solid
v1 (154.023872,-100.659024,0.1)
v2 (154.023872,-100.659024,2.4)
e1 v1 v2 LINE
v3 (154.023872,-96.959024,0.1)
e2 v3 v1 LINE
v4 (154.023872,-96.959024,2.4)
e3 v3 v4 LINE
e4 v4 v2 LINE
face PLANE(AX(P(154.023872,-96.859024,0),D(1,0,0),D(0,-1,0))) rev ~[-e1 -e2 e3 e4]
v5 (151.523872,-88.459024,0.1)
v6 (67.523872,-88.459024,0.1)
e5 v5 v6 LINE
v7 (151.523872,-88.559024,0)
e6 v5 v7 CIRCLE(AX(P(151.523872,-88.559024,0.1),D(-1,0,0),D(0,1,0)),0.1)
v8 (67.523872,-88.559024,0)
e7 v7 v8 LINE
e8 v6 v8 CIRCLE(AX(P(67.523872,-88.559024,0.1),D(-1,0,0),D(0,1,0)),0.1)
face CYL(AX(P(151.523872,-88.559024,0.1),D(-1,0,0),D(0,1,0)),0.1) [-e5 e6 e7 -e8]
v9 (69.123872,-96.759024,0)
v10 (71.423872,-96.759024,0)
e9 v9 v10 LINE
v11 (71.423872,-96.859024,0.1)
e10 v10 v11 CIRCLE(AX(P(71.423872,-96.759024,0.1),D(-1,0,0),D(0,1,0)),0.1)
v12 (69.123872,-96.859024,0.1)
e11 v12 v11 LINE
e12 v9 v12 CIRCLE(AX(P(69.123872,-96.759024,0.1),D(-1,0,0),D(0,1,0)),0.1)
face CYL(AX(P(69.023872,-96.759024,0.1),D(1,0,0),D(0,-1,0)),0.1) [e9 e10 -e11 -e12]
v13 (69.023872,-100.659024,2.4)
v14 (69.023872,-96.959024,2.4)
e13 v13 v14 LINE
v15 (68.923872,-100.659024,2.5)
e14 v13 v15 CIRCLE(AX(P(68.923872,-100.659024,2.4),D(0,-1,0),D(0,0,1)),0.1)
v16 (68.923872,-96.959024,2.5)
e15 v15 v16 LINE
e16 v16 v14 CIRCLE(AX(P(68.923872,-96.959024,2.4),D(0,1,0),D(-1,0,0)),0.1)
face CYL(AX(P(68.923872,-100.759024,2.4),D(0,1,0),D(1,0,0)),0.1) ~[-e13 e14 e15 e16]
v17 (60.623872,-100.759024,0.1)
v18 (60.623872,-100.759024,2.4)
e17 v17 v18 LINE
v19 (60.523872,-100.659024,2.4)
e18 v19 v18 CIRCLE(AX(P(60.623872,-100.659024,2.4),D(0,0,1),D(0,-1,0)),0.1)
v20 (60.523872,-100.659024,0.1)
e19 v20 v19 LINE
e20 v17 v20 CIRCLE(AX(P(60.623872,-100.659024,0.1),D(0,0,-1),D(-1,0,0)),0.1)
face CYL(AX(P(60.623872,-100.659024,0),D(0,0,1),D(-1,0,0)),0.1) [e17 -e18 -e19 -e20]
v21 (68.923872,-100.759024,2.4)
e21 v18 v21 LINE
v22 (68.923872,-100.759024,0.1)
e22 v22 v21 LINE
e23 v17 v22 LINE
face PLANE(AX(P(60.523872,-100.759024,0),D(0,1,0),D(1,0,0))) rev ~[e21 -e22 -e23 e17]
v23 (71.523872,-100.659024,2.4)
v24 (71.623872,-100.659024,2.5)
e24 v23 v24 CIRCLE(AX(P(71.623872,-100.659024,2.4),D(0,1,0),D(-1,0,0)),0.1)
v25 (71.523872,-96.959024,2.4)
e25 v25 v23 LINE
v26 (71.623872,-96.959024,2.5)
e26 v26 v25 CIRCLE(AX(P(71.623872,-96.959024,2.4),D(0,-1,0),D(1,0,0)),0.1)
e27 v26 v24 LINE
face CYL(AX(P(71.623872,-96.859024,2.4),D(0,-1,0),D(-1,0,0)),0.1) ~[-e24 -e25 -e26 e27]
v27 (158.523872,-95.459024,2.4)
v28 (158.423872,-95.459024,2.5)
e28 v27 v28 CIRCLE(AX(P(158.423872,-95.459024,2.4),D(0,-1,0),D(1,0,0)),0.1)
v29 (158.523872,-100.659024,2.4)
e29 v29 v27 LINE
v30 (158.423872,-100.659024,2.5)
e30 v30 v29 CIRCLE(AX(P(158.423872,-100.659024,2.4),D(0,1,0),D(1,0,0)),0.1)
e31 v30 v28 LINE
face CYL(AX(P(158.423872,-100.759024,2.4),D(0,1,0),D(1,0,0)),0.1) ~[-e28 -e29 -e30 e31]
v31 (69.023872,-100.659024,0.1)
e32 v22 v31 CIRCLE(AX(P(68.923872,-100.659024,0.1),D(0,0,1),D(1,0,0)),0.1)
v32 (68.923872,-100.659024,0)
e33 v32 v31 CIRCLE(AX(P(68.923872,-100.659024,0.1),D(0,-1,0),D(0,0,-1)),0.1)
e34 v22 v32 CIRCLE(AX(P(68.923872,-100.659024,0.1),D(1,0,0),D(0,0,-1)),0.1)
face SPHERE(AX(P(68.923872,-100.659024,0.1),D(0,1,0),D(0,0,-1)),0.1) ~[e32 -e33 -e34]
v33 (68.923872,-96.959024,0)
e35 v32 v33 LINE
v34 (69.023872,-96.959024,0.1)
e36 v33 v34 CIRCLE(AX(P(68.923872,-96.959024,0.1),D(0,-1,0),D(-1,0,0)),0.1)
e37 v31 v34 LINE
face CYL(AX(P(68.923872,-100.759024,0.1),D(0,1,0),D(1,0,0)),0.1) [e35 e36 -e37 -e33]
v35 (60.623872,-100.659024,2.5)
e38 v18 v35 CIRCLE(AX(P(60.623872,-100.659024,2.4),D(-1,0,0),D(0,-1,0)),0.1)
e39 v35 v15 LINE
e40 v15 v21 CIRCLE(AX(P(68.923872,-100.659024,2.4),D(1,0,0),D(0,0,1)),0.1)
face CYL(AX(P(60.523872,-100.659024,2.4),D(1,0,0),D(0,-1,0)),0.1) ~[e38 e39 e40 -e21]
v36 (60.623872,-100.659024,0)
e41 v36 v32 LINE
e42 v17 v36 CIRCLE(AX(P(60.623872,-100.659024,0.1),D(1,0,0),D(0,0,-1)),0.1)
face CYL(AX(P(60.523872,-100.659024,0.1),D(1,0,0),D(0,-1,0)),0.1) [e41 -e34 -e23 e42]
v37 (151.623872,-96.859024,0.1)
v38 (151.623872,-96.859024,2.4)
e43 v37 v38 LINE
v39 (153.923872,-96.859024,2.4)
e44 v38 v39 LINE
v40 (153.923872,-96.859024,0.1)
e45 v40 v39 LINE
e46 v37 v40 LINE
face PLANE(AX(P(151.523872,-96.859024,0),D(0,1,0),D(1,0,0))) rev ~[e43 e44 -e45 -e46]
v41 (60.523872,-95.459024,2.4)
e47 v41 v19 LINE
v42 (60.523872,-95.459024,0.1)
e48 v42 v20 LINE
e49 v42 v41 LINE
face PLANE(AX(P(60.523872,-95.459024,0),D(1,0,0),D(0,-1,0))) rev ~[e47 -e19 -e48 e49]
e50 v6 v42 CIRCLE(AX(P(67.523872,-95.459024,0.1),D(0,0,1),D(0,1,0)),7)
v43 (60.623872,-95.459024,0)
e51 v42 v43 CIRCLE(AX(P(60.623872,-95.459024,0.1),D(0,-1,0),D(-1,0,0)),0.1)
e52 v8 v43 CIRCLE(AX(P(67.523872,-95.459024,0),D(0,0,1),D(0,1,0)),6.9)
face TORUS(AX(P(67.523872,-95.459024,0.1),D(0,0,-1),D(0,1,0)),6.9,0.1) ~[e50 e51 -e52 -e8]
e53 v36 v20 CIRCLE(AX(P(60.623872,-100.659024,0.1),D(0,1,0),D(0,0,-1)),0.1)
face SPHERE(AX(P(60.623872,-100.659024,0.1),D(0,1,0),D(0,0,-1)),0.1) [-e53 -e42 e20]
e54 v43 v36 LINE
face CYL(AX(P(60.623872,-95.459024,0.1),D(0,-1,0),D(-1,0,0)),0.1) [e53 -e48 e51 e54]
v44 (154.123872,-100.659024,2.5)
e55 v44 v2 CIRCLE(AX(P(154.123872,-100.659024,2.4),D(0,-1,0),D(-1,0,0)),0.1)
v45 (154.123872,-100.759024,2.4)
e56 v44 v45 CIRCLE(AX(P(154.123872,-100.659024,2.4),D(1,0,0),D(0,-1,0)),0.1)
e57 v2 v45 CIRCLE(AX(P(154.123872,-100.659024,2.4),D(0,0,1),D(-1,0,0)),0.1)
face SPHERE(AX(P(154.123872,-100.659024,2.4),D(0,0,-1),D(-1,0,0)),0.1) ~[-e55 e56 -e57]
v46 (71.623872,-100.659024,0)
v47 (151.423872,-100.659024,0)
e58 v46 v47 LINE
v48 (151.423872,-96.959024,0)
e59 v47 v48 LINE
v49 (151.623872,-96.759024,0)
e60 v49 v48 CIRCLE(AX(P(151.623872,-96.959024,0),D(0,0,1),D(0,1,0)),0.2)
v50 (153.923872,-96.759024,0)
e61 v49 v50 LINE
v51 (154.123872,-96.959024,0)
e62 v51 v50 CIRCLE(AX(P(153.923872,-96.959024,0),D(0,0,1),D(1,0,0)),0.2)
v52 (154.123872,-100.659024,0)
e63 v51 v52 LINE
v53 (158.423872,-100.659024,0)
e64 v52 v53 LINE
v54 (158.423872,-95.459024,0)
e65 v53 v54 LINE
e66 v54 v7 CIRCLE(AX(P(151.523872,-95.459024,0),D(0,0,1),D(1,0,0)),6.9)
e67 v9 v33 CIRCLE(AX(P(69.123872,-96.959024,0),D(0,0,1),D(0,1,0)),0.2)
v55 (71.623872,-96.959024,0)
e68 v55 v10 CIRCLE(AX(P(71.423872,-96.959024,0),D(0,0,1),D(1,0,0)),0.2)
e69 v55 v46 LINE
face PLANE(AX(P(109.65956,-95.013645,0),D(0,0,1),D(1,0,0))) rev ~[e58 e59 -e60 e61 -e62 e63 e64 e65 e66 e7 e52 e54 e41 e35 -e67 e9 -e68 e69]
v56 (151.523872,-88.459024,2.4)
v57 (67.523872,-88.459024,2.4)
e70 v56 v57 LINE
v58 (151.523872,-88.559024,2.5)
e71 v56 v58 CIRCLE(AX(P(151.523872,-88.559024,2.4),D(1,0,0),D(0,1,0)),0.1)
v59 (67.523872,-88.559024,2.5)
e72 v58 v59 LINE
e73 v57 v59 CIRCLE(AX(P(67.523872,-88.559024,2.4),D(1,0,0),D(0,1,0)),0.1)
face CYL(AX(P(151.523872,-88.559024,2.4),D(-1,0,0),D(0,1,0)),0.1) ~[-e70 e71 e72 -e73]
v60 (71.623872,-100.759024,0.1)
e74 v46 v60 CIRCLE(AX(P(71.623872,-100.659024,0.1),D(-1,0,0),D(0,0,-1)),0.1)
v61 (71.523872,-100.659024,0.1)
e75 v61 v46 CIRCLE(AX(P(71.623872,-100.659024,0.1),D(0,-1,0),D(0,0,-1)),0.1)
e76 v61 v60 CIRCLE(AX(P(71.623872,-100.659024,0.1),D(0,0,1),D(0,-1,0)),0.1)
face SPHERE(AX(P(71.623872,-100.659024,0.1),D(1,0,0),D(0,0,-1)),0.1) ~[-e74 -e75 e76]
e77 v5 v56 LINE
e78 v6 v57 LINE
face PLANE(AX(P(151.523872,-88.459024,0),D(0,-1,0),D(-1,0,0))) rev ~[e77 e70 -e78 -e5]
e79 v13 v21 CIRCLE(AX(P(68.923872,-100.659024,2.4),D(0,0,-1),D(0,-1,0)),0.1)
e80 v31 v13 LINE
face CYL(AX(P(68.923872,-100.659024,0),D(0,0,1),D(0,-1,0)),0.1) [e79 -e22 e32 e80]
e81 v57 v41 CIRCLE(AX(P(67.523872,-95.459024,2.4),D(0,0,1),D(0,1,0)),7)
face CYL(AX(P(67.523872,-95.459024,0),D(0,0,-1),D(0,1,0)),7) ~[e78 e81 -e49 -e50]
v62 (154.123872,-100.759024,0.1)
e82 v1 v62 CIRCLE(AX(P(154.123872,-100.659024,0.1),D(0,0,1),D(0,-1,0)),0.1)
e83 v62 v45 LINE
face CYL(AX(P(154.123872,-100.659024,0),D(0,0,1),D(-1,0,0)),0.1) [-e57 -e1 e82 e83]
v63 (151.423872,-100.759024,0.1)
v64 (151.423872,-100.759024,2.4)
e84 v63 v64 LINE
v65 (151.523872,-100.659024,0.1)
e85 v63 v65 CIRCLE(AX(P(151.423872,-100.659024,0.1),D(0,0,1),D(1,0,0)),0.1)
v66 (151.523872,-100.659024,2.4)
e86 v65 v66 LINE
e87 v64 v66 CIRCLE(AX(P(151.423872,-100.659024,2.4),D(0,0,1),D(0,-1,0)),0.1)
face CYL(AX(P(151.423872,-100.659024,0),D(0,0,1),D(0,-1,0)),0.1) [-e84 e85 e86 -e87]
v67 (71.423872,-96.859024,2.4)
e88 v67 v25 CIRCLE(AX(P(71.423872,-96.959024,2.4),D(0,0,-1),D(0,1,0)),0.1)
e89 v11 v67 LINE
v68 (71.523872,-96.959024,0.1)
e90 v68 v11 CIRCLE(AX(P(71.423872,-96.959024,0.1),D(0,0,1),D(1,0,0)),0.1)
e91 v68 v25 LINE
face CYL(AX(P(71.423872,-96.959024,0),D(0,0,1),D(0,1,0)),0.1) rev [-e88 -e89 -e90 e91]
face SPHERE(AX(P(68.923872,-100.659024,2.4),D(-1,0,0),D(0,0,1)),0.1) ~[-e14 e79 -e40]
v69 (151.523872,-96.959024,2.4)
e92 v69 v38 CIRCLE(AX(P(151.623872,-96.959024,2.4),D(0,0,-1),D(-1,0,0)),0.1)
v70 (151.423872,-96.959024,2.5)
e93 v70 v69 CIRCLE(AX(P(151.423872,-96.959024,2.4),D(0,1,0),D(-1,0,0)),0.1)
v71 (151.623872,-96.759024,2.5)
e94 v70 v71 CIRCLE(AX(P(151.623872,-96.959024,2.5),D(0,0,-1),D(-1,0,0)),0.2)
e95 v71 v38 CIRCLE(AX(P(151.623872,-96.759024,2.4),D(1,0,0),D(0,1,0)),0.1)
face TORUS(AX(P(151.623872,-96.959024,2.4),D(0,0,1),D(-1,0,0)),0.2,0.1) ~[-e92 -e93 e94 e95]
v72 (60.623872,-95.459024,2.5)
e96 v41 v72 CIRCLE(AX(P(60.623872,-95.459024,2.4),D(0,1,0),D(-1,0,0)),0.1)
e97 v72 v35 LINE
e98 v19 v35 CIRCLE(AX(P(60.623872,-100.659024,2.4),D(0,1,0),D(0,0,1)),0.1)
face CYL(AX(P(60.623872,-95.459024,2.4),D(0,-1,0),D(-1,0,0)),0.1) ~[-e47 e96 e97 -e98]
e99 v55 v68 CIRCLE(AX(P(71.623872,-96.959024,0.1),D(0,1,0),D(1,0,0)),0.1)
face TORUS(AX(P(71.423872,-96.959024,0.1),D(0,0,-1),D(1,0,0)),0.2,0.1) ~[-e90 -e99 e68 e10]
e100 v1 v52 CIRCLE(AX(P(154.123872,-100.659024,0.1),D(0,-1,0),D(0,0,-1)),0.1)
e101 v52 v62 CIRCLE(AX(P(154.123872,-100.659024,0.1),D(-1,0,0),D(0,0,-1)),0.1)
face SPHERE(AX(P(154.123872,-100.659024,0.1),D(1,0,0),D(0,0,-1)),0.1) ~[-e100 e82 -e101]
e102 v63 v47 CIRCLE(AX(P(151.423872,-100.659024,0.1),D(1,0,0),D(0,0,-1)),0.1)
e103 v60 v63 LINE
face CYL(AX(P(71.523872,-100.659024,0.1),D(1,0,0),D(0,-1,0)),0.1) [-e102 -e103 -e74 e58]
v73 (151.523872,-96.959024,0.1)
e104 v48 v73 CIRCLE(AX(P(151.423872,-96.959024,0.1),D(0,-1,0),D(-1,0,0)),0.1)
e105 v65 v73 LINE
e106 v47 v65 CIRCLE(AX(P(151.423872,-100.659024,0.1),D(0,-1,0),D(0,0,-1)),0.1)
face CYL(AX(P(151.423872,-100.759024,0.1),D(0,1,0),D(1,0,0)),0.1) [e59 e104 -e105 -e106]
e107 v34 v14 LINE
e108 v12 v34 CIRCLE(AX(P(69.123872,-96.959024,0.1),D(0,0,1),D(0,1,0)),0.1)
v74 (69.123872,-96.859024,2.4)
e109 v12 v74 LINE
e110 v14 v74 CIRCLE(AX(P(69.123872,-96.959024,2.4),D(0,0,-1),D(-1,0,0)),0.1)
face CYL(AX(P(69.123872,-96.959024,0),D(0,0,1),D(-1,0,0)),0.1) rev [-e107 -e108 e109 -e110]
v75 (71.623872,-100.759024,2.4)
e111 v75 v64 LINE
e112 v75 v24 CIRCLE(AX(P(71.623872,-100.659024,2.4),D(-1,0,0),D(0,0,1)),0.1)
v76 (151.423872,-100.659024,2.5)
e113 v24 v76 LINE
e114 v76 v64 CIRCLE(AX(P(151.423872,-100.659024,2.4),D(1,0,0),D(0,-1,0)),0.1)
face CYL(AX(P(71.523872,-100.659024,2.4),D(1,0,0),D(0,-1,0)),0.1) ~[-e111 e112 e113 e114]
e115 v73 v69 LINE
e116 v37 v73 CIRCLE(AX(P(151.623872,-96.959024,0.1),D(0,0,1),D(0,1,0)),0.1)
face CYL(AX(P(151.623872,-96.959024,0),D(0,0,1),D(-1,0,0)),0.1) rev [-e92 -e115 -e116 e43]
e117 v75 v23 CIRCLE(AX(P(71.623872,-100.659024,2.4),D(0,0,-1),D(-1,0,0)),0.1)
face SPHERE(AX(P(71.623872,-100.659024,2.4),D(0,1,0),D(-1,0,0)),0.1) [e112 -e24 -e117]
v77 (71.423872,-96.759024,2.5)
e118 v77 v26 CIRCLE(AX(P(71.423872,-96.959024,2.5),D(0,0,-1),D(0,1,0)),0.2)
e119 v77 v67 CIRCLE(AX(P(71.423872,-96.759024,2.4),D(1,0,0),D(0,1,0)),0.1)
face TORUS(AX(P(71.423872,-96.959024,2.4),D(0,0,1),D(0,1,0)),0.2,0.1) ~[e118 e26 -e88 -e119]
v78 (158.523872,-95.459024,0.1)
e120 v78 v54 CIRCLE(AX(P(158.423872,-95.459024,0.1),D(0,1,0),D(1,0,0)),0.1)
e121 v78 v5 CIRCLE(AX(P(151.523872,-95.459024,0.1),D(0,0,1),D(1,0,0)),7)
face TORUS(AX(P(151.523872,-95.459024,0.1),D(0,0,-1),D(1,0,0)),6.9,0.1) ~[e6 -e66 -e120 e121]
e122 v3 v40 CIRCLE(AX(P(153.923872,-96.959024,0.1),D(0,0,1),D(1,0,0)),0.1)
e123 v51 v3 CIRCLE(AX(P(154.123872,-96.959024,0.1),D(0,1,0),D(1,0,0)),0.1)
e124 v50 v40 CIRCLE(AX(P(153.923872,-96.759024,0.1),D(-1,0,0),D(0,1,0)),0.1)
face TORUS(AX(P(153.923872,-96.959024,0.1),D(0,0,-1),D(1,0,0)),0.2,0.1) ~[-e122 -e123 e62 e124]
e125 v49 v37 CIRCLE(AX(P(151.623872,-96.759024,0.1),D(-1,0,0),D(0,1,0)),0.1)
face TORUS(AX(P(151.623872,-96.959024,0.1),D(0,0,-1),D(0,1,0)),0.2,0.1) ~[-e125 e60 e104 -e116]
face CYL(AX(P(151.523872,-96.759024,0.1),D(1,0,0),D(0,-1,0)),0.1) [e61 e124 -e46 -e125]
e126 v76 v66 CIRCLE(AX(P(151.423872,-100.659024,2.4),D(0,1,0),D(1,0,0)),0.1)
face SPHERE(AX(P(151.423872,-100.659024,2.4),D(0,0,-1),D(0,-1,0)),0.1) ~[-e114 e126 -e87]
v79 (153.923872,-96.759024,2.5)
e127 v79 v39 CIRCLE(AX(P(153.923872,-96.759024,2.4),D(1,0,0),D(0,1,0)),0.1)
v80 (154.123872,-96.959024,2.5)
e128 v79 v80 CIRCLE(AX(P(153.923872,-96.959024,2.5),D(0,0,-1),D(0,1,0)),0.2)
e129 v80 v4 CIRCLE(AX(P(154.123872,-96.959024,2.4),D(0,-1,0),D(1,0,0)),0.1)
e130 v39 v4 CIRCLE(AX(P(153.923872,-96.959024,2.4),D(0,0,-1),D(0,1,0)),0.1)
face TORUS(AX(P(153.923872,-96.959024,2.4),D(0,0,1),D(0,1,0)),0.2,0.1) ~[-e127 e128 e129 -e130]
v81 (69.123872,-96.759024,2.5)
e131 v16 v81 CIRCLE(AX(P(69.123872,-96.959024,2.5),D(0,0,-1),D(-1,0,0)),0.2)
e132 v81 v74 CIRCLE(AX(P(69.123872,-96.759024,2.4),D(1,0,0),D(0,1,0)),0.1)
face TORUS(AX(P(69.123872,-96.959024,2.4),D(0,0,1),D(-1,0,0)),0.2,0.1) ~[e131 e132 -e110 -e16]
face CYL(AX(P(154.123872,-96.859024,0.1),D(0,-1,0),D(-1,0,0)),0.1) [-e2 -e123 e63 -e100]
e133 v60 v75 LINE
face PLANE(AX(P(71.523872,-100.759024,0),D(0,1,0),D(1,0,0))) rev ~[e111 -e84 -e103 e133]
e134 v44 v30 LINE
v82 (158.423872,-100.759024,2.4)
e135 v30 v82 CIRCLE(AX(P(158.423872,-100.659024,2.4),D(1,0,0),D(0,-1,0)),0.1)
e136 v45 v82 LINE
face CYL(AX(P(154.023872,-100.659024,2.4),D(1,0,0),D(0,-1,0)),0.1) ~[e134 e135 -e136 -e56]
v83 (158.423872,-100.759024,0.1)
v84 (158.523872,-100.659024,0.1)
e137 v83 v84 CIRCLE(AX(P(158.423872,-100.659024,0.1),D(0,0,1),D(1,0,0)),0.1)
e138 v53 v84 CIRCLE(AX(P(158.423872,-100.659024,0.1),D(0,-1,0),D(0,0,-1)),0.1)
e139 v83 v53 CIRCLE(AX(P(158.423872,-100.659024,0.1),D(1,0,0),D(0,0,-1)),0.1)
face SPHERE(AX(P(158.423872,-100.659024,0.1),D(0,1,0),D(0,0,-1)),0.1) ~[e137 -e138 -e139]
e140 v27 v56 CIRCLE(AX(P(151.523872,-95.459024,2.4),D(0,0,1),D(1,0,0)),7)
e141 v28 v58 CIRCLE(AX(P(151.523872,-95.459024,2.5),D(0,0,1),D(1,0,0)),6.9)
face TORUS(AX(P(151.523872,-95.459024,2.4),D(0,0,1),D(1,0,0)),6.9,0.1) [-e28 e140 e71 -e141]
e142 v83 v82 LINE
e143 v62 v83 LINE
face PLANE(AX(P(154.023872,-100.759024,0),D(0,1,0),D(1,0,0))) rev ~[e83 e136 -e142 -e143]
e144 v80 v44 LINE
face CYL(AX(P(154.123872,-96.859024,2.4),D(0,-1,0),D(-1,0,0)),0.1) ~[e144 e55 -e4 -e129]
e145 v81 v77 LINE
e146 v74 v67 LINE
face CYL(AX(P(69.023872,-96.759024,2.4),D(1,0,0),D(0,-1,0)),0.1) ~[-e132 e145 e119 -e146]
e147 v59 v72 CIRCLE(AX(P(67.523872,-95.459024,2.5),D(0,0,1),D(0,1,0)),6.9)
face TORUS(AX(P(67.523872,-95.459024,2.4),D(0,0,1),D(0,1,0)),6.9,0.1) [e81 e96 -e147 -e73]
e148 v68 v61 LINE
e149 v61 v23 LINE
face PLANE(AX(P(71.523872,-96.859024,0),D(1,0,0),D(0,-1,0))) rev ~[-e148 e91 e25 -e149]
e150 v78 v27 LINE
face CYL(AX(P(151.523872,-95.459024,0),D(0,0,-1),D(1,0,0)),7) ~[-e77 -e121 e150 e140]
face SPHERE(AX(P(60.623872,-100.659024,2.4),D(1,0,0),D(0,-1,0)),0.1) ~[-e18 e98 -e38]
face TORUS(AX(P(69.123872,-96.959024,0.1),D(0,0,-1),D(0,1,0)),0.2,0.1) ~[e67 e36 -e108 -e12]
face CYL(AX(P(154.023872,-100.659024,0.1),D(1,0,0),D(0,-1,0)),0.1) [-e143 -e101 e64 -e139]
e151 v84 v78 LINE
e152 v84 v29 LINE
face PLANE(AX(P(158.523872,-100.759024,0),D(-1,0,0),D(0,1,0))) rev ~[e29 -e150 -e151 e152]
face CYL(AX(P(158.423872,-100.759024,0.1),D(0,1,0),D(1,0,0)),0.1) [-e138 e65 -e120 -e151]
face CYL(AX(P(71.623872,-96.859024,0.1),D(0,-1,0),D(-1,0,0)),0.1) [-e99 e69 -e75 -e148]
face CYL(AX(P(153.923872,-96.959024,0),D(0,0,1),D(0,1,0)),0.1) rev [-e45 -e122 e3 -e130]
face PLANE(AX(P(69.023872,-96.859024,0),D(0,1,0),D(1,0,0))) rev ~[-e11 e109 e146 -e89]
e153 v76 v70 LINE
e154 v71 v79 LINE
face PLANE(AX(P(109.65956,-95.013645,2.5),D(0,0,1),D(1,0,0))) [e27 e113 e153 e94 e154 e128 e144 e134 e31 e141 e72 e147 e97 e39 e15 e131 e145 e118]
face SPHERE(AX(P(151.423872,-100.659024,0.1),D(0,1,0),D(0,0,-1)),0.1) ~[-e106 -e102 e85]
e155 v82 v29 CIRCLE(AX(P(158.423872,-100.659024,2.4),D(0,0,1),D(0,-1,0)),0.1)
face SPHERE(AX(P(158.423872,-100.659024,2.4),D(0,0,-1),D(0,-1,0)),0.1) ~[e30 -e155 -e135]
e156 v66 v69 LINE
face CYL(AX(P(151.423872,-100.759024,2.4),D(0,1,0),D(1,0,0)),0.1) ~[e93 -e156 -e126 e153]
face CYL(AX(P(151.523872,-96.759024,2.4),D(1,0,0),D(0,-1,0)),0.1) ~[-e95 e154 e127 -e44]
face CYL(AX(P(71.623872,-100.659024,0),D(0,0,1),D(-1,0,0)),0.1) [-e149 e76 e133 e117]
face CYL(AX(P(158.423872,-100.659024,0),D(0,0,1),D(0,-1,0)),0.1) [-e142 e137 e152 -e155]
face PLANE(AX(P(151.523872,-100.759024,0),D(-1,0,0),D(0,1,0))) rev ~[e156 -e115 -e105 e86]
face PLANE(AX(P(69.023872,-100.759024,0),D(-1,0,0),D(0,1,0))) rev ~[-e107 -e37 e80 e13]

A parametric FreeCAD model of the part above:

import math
import FreeCAD as App
import Part
import Sketcher
from FreeCAD import Vector
Q = App.Units.Quantity

doc = App.newDocument("Part")
params = doc.addObject("Spreadsheet::Sheet", "Params")
for row, (alias, value) in enumerate([
    ("sketch1_radius", "7 mm"),
    ("sketch1_width", "80 mm"),
    ("sketch1_width2", "84 mm"),
    ("sketch1_width3", "8.5 mm"),
    ("sketch1_height", "5.3 mm"),
    ("pad1_length", "2.5 mm"),
    ("fillet_radius", "0.1 mm"),
], start=1):
    params.set(f"A{row}", alias)
    params.set(f"B{row}", "=" + value)
    params.setAlias(f"B{row}", alias)

body = doc.addObject("PartDesign::Body", "Body")

sketch1 = body.newObject("Sketcher::SketchObject", "Sketch")
sketch1.AttachmentSupport = (doc.getObject("XY_Plane"), [""])
sketch1.MapMode = "FlatFace"
sketch1.addGeometry([
    Part.LineSegment(Vector(60.5, -95.5, 0), Vector(60.5, -100.8, 0)),
    Part.LineSegment(Vector(60.5, -100.8, 0), Vector(69, -100.8, 0)),
    Part.LineSegment(Vector(69, -100.8, 0), Vector(69, -96.9, 0)),
    Part.LineSegment(Vector(69, -96.9, 0), Vector(71.5, -96.9, 0)),
    Part.LineSegment(Vector(71.5, -96.9, 0), Vector(71.5, -100.8, 0)),
    Part.LineSegment(Vector(71.5, -100.8, 0), Vector(151.5, -100.8, 0)),
    Part.LineSegment(Vector(151.5, -100.8, 0), Vector(151.5, -96.9, 0)),
    Part.LineSegment(Vector(151.5, -96.9, 0), Vector(154, -96.9, 0)),
    Part.LineSegment(Vector(154, -96.9, 0), Vector(154, -100.8, 0)),
    Part.LineSegment(Vector(154, -100.8, 0), Vector(158.5, -100.8, 0)),
    Part.LineSegment(Vector(158.5, -100.8, 0), Vector(158.5, -95.5, 0)),
    Part.ArcOfCircle(Part.Circle(Vector(151.5, -95.5, 0), Vector(0, 0, 1), 7), math.radians(0), math.radians(90)),
    Part.LineSegment(Vector(151.5, -88.5, 0), Vector(67.5, -88.5, 0)),
    Part.ArcOfCircle(Part.Circle(Vector(67.5, -95.5, 0), Vector(0, 0, 1), 7), math.radians(90), math.radians(180)),
], False)
sketch1.addConstraint([
    Sketcher.Constraint("Coincident", 0, 2, 1, 1),
    Sketcher.Constraint("Coincident", 1, 2, 2, 1),
    Sketcher.Constraint("Coincident", 2, 2, 3, 1),
    Sketcher.Constraint("Coincident", 3, 2, 4, 1),
    Sketcher.Constraint("Coincident", 4, 2, 5, 1),
    Sketcher.Constraint("Coincident", 5, 2, 6, 1),
    Sketcher.Constraint("Coincident", 6, 2, 7, 1),
    Sketcher.Constraint("Coincident", 7, 2, 8, 1),
    Sketcher.Constraint("Coincident", 8, 2, 9, 1),
    Sketcher.Constraint("Coincident", 9, 2, 10, 1),
    Sketcher.Constraint("Tangent", 10, 2, 11, 1),
    Sketcher.Constraint("Tangent", 11, 2, 12, 1),
    Sketcher.Constraint("Tangent", 12, 2, 13, 1),
    Sketcher.Constraint("Tangent", 13, 2, 0, 1),
    Sketcher.Constraint("Vertical", 0),
    Sketcher.Constraint("Horizontal", 1),
    Sketcher.Constraint("Vertical", 2),
    Sketcher.Constraint("Horizontal", 3),
    Sketcher.Constraint("Vertical", 4),
    Sketcher.Constraint("Horizontal", 5),
    Sketcher.Constraint("Vertical", 6),
    Sketcher.Constraint("Horizontal", 7),
    Sketcher.Constraint("Vertical", 8),
    Sketcher.Constraint("Horizontal", 9),
    Sketcher.Constraint("Vertical", 10),
    Sketcher.Constraint("Horizontal", 12),
    Sketcher.Constraint("Equal", 11, 13),
    Sketcher.Constraint("Horizontal", 1, 2, 4, 2),
    Sketcher.Constraint("Horizontal", 3, 2, 6, 2),
    Sketcher.Constraint("Horizontal", 5, 2, 8, 2),
    Sketcher.Constraint("Vertical", 11, 3, 5, 2),
    Sketcher.Constraint("Equal", 3, 7),
    Sketcher.Constraint("Radius", 11, Q("7 mm")),
    Sketcher.Constraint("DistanceX", 5, 1, 5, 2, Q("80 mm")),
    Sketcher.Constraint("DistanceX", 12, 2, 12, 1, Q("84 mm")),
    Sketcher.Constraint("DistanceX", 1, 1, 1, 2, Q("8.5 mm")),
    Sketcher.Constraint("DistanceY", 0, 2, 0, 1, Q("5.3 mm")),
    Sketcher.Constraint("DistanceY", 2, 1, 2, 2, Q("3.9 mm")),
    Sketcher.Constraint("DistanceX", -1, 1, 11, 3, Q("151.523872 mm")),
    Sketcher.Constraint("DistanceY", 11, 3, -1, 1, Q("95.459024 mm")),
])
sketch1.setExpression("Constraints[32]", "Params.sketch1_radius")
sketch1.setExpression("Constraints[33]", "Params.sketch1_width")
sketch1.setExpression("Constraints[34]", "Params.sketch1_width2")
sketch1.setExpression("Constraints[35]", "Params.sketch1_width3")
sketch1.setExpression("Constraints[36]", "Params.sketch1_height")
pad1 = body.newObject("PartDesign::Pad", "Pad")
pad1.Profile = sketch1
pad1.setExpression("Length", "Params.pad1_length")
doc.recompute()

fillet = body.newObject("PartDesign::Fillet", "Fillet")
fillet.Base = (pad1, ["Edge1"])
fillet.UseAllEdges = True
fillet.setExpression("Radius", "Params.fillet_radius")

doc.recompute()
